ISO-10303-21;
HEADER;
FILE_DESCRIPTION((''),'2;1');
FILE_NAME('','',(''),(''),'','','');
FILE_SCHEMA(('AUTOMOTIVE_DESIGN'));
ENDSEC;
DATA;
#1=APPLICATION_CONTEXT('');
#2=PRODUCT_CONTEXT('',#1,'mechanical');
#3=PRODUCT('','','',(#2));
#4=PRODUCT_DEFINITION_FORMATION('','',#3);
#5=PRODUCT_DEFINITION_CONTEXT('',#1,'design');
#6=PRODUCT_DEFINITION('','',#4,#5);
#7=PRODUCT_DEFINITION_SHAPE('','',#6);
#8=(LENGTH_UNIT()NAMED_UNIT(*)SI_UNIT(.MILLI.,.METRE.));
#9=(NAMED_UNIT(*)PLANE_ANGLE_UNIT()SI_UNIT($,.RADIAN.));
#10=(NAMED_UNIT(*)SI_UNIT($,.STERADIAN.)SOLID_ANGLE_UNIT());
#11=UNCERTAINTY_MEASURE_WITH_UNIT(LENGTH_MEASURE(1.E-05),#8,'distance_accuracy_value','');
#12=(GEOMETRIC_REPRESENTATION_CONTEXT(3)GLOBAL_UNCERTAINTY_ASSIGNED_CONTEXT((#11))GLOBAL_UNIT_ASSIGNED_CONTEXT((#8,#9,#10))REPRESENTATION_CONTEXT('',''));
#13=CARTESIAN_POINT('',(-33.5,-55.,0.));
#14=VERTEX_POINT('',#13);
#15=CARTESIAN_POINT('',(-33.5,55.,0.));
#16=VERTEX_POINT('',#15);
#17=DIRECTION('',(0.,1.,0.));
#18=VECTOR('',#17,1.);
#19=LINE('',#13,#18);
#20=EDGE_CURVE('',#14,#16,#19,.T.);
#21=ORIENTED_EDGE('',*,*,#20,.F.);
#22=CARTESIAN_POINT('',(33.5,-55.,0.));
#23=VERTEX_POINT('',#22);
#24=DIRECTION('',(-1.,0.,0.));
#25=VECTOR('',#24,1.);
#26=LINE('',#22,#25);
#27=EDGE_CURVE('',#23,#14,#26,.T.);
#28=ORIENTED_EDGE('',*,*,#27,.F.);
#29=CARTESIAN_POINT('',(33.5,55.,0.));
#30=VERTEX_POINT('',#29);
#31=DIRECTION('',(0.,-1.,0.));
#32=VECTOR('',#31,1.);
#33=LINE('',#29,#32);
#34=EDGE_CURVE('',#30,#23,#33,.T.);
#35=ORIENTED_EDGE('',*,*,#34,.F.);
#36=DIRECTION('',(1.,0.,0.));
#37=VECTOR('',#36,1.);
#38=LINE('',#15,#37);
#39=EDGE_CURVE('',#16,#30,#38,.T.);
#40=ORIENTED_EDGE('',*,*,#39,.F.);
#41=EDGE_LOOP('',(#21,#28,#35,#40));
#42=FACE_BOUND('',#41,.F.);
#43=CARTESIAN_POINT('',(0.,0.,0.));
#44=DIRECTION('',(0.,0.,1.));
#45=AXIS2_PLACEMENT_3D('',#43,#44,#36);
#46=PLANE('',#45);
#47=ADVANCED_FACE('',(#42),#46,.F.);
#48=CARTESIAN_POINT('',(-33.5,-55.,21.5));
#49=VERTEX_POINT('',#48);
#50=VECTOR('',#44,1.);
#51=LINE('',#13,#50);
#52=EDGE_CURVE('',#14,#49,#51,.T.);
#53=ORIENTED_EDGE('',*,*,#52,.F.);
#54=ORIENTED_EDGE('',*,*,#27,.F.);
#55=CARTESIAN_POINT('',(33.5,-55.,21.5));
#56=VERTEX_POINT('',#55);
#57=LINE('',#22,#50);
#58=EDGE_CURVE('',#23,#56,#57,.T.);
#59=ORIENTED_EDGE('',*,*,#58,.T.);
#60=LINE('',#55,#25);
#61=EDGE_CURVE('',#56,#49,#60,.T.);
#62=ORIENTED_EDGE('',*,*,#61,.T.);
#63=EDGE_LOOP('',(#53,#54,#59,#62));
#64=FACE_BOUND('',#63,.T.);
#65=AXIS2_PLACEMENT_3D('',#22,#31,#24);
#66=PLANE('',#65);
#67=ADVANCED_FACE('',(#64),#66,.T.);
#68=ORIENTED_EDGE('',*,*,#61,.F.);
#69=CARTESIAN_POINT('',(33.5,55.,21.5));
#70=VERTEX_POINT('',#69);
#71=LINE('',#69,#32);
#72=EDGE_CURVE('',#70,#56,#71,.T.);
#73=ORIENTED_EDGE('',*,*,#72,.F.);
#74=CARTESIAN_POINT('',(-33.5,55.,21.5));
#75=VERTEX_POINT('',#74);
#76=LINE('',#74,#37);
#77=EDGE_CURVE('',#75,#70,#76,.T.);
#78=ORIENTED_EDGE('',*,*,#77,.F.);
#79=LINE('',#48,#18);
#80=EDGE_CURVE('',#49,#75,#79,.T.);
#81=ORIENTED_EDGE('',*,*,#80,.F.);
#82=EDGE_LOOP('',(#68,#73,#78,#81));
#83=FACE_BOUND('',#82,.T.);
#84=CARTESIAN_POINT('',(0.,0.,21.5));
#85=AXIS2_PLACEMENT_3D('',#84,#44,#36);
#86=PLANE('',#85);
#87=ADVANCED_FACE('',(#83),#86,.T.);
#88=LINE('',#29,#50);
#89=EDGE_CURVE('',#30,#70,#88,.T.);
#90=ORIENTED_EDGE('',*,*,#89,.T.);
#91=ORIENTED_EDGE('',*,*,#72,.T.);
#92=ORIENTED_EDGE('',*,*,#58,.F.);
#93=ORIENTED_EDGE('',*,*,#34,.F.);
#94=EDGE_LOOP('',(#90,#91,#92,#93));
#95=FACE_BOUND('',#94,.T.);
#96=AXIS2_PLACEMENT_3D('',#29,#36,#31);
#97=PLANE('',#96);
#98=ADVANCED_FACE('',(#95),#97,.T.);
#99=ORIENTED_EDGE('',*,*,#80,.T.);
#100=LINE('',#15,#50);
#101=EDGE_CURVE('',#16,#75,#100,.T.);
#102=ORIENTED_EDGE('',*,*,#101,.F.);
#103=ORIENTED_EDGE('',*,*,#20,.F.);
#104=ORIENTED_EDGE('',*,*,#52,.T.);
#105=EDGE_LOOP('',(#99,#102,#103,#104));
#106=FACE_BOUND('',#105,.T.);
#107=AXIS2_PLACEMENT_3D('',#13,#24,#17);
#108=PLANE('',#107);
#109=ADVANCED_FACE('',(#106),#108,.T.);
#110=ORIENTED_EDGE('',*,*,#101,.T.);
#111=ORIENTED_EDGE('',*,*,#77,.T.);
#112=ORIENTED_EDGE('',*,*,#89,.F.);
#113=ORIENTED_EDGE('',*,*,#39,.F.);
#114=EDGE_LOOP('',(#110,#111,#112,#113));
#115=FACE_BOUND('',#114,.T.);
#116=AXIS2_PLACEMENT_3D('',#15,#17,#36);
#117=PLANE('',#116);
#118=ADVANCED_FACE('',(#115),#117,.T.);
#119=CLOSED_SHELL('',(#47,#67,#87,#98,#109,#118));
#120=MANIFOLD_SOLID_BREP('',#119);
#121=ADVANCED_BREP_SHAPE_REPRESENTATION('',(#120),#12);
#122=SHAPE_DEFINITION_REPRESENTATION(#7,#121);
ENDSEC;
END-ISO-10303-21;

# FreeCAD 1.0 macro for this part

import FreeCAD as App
import Part
import Sketcher

V = App.Vector
Q = App.Units.Quantity

doc = App.newDocument("Part")
params = doc.addObject("Spreadsheet::Sheet", "Params")
for row, (alias, value) in enumerate([
    ("sketch1_width", "67 mm"),
    ("sketch1_height", "110 mm"),
    ("pad1_length", "21.5 mm"),
], start=1):
    params.set(f"A{row}", alias)
    params.set(f"B{row}", "=" + value)
    params.setAlias(f"B{row}", alias)

body = doc.addObject("PartDesign::Body", "Body")

# Sketch on XY plane
sketch1 = body.newObject("Sketcher::SketchObject", "Sketch")
sketch1.AttachmentSupport = (doc.getObject("XY_Plane"), [""])
sketch1.MapMode = "FlatFace"
sketch1.addGeometry([
    Part.LineSegment(V(-33.5, -55, 0), V(33.5, -55, 0)),
    Part.LineSegment(V(33.5, -55, 0), V(33.5, 55, 0)),
    Part.LineSegment(V(33.5, 55, 0), V(-33.5, 55, 0)),
    Part.LineSegment(V(-33.5, 55, 0), V(-33.5, -55, 0)),
], False)
sketch1.addConstraint([
    Sketcher.Constraint("Coincident", 0, 2, 1, 1),
    Sketcher.Constraint("Coincident", 1, 2, 2, 1),
    Sketcher.Constraint("Coincident", 2, 2, 3, 1),
    Sketcher.Constraint("Coincident", 3, 2, 0, 1),
    Sketcher.Constraint("Horizontal", 0),
    Sketcher.Constraint("Vertical", 1),
    Sketcher.Constraint("Horizontal", 2),
    Sketcher.Constraint("Vertical", 3),
    Sketcher.Constraint("Symmetric", 0, 2, 2, 2, -1, 1),
    Sketcher.Constraint("DistanceX", 0, 1, 0, 2, Q("67 mm")),
    Sketcher.Constraint("DistanceY", 1, 1, 1, 2, Q("110 mm")),
])
sketch1.setExpression("Constraints[9]", "Params.sketch1_width")
sketch1.setExpression("Constraints[10]", "Params.sketch1_height")
pad1 = body.newObject("PartDesign::Pad", "Pad")
pad1.Profile = sketch1
pad1.setExpression("Length", "Params.pad1_length")

doc.recompute()
